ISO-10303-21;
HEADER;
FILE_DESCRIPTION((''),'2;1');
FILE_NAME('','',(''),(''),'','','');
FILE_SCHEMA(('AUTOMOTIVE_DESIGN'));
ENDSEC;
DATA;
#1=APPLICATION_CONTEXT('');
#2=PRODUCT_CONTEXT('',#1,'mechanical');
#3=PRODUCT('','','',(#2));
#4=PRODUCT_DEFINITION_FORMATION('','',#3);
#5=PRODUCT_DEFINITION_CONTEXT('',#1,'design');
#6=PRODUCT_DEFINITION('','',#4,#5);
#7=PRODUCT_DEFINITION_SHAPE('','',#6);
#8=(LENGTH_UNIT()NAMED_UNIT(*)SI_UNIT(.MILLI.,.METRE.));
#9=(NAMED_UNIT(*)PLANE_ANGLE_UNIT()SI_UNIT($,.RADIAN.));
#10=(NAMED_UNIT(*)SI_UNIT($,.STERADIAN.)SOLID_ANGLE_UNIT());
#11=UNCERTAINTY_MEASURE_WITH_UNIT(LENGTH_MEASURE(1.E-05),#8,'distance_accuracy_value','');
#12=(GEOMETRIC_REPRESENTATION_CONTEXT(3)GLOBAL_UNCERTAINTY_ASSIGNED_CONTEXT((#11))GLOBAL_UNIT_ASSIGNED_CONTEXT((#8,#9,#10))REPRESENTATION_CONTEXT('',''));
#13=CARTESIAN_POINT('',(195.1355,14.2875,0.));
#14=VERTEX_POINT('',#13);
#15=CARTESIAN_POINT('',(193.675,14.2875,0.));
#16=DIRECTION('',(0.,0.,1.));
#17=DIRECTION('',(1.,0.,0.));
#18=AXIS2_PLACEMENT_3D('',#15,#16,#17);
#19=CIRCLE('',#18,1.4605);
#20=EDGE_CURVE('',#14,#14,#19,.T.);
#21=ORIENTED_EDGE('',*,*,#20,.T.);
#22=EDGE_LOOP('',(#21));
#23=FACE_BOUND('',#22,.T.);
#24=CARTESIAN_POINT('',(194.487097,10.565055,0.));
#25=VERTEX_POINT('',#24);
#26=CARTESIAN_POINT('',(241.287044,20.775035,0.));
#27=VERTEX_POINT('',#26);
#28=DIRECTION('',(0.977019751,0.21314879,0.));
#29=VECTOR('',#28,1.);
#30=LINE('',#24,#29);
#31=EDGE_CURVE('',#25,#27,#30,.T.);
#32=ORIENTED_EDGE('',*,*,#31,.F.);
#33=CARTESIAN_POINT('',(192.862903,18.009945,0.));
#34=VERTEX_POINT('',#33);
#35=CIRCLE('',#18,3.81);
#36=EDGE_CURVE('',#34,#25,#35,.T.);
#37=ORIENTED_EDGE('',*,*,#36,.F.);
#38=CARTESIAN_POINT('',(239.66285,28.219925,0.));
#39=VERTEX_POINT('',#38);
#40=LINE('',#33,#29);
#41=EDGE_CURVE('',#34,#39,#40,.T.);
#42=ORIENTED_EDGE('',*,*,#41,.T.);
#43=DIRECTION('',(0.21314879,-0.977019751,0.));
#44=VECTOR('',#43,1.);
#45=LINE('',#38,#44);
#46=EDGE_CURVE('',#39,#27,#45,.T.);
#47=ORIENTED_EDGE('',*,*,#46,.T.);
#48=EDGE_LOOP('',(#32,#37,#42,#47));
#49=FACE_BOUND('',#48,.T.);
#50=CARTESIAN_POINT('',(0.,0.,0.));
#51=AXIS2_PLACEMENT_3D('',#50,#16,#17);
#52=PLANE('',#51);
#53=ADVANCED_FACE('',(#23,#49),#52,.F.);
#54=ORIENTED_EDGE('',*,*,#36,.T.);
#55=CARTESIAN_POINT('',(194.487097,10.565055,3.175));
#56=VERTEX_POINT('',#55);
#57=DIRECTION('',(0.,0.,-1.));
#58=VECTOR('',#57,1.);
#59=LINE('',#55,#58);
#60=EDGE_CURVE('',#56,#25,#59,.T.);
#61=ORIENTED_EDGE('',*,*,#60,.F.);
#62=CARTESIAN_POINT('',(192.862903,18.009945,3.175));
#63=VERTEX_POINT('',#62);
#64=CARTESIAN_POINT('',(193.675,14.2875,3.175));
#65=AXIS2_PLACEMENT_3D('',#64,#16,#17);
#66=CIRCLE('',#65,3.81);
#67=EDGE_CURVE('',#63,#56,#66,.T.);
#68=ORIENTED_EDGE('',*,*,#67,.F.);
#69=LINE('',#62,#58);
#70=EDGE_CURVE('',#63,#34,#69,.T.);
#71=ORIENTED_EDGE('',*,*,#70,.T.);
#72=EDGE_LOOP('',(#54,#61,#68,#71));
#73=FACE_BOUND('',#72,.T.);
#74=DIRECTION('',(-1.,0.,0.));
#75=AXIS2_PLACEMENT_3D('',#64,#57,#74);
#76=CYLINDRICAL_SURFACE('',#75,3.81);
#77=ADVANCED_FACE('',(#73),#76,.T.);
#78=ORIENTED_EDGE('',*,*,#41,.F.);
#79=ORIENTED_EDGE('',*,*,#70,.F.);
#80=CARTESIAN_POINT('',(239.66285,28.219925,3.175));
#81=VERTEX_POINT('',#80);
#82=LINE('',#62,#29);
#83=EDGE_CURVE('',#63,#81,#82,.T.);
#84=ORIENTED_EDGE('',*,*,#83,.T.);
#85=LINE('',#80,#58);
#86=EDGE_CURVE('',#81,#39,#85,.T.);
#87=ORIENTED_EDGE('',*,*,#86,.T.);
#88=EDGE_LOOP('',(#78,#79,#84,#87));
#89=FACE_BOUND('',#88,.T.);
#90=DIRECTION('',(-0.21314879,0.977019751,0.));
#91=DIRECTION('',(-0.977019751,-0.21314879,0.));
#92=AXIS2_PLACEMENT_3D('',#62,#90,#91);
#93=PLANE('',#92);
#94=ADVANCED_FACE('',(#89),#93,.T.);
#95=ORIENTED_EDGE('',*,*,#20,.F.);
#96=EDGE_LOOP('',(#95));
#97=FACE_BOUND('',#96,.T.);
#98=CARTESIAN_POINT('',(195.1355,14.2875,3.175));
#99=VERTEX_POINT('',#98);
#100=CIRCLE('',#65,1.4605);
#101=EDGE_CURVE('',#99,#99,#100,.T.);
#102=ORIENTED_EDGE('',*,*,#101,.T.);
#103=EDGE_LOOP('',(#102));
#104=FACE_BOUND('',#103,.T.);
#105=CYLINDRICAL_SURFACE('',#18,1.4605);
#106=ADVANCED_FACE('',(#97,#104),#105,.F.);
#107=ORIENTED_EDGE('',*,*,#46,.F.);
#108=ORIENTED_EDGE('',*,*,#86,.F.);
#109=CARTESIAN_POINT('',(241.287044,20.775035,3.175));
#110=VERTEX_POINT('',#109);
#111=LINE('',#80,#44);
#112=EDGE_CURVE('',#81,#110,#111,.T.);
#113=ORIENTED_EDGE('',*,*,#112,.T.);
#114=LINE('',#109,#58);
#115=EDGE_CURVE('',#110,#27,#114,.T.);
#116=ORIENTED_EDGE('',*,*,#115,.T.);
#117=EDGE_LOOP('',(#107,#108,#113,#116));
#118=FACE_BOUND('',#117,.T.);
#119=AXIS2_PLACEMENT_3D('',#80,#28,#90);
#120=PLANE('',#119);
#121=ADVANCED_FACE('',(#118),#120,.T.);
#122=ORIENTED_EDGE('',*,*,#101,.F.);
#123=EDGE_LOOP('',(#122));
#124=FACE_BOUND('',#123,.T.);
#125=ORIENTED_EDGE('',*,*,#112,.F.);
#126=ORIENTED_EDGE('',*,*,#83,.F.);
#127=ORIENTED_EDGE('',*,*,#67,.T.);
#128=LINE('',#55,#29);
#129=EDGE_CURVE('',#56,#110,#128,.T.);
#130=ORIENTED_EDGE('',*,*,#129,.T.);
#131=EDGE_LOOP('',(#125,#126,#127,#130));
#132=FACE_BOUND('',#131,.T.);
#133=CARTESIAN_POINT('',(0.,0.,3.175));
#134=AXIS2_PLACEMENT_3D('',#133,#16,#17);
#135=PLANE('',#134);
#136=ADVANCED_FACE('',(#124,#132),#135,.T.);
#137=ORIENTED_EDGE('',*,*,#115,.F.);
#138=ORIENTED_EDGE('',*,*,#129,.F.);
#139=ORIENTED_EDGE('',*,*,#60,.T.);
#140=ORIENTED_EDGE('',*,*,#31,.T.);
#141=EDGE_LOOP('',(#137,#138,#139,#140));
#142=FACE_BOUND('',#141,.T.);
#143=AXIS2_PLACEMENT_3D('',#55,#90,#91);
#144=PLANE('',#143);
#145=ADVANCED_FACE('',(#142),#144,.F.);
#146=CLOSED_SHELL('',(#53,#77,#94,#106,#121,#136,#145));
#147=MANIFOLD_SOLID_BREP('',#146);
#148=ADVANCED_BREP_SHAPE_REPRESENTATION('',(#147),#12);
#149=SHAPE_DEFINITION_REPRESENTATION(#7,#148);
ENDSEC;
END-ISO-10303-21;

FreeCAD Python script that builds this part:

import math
import FreeCAD as App
import Part
import Sketcher

V = App.Vector
Q = App.Units.Quantity

doc = App.newDocument("Part")
body = doc.addObject("PartDesign::Body", "Body")

# Sketch on XY plane
sketch1 = body.newObject("Sketcher::SketchObject", "Sketch")
sketch1.AttachmentSupport = (doc.getObject("XY_Plane"), [""])
sketch1.MapMode = "FlatFace"
sketch1.addGeometry([
    Part.LineSegment(V(239.7, 28.2, 0), V(192.9, 18, 0)),
    Part.ArcOfCircle(Part.Circle(V(193.7, 14.3, 0), V(0, 0, 1), 3.8), math.radians(102), math.radians(282)),
    Part.LineSegment(V(194.5, 10.6, 0), V(241.3, 20.8, 0)),
    Part.LineSegment(V(241.3, 20.8, 0), V(239.7, 28.2, 0)),
], False)
sketch1.addConstraint([
    Sketcher.Constraint("Tangent", 0, 2, 1, 1),
    Sketcher.Constraint("Tangent", 1, 2, 2, 1),
    Sketcher.Constraint("Coincident", 2, 2, 3, 1),
    Sketcher.Constraint("Coincident", 3, 2, 0, 1),
    Sketcher.Constraint("Parallel", 0, 2),
    Sketcher.Constraint("Perpendicular", 2, 3),
    Sketcher.Constraint("Radius", 1, Q("0.15 in")),
    Sketcher.Constraint("DistanceX", -1, 1, 1, 3, Q("7.625 in")),
    Sketcher.Constraint("DistanceY", -1, 1, 1, 3, Q("0.5625 in")),
    Sketcher.Constraint("DistanceX", -1, 1, 3, 2, Q("239.66285 mm")),
    Sketcher.Constraint("DistanceY", 1, 2, 0, 2, Q("7.444891 mm")),
])
pad1 = body.newObject("PartDesign::Pad", "Pad")
pad1.Profile = sketch1
pad1.Length = Q("0.125 in")

# Sketch on XY plane
sketch2 = body.newObject("Sketcher::SketchObject", "Sketch001")
sketch2.AttachmentSupport = (doc.getObject("XY_Plane"), [""])
sketch2.MapMode = "FlatFace"
sketch2.AttachmentOffset = App.Placement(V(0, 0, 0.125 * 25.4), App.Rotation())
sketch2.addGeometry(Part.Circle(V(193.7, 14.3, 0), V(0, 0, 1), 1.5), False)
sketch2.addConstraint([
    Sketcher.Constraint("Diameter", 0, Q("0.115 in")),
    Sketcher.Constraint("DistanceX", -1, 1, 0, 3, Q("7.625 in")),
    Sketcher.Constraint("DistanceY", -1, 1, 0, 3, Q("0.5625 in")),
])
pocket1 = body.newObject("PartDesign::Pocket", "Pocket")
pocket1.Profile = sketch2
pocket1.Length = Q("0.125 in")

doc.recompute()
